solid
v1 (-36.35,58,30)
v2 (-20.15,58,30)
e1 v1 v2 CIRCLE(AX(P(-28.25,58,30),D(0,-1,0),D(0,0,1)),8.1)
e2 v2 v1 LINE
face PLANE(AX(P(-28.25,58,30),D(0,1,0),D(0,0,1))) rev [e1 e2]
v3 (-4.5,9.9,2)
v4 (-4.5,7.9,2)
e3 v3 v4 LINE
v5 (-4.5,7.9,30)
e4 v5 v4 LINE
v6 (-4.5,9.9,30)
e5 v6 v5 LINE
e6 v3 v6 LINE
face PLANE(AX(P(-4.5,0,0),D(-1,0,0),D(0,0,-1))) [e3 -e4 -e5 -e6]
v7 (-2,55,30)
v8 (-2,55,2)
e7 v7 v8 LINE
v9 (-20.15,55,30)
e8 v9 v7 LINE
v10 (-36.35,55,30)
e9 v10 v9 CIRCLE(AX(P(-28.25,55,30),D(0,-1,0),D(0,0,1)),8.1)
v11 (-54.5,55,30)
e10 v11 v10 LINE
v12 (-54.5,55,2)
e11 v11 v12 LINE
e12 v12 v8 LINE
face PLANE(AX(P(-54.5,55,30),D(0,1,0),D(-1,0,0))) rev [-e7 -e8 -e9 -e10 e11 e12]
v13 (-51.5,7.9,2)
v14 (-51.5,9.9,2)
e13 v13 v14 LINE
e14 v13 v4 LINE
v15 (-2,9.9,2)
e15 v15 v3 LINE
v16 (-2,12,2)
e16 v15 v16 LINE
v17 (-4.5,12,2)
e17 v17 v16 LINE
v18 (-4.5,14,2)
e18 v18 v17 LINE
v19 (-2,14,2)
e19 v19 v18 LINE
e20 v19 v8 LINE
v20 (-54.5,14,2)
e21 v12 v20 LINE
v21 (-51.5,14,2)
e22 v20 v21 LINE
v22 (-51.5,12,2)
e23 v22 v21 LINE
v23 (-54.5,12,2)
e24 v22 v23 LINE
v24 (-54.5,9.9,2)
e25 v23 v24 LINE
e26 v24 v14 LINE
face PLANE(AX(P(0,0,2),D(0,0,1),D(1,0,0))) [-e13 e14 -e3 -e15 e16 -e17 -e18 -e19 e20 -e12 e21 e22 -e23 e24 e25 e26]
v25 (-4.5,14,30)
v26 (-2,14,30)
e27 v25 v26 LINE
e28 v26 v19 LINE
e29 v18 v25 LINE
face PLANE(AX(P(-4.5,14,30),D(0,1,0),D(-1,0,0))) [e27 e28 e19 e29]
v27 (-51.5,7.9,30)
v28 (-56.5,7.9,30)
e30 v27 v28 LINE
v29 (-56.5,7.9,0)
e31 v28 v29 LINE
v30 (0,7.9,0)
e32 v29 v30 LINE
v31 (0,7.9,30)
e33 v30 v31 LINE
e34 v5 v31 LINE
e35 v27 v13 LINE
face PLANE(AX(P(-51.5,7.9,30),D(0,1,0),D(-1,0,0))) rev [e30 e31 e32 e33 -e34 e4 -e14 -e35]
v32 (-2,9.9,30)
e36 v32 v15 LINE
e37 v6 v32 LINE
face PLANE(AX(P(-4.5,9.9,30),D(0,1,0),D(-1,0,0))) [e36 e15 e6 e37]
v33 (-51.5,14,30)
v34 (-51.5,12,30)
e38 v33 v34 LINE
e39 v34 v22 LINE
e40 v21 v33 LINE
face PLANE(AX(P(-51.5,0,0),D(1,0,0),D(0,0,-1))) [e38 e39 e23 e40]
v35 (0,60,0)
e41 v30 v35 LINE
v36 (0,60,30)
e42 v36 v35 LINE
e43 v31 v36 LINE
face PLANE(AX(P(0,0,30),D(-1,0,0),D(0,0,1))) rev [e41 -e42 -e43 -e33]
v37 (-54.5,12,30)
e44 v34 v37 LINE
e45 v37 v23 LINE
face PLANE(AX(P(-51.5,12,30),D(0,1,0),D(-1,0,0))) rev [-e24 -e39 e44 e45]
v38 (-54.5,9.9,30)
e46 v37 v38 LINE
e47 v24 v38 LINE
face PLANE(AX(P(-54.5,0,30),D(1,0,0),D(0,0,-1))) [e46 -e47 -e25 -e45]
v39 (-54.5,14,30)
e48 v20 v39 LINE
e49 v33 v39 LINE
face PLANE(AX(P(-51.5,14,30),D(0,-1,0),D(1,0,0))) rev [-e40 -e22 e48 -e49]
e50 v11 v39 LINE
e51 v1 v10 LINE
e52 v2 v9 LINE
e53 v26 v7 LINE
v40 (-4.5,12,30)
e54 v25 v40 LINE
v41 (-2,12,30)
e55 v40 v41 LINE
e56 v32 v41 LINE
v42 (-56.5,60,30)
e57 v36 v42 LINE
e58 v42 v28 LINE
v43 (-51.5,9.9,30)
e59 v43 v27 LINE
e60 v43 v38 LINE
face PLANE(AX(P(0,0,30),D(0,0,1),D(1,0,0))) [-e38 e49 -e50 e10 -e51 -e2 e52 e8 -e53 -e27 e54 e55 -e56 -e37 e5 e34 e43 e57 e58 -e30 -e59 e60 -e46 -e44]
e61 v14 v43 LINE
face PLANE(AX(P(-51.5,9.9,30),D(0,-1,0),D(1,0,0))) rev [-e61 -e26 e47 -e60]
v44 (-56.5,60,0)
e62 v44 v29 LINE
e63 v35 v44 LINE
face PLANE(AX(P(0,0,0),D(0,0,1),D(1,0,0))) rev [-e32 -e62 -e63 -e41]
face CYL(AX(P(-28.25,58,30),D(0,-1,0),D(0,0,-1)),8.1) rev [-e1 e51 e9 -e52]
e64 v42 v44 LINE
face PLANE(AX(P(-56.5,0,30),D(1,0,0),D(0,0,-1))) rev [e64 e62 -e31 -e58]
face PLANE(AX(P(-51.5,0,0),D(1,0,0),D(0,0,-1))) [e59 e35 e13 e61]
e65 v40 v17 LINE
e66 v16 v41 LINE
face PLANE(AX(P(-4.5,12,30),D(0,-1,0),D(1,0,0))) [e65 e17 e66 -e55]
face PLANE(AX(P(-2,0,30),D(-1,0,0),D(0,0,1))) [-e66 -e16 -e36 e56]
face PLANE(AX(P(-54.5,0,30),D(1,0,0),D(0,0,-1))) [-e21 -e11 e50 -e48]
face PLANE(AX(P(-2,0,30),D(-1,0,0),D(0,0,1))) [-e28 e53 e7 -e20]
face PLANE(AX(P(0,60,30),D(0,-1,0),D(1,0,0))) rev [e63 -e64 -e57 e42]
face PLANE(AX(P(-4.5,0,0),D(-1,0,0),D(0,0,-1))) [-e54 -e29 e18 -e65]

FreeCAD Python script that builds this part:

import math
import FreeCAD as App
import Part
import Sketcher

V = App.Vector
Q = App.Units.Quantity


def faces_at(feature, points):
    """Names of the faces that lie closest to the given points."""
    faces = feature.Shape.Faces
    near = lambda p: min(range(len(faces)), key=lambda i: faces[i].distToShape(Part.Vertex(*p))[0])
    return sorted({f"Face{near(p) + 1}" for p in points})


def add_polygon(sketch, points):
    """Adds a closed chain of lines whose ends are joined by coincident constraints."""
    first, n = sketch.GeometryCount, len(points)
    for a, b in zip(points, points[1:] + points[:1]):
        sketch.addGeometry(Part.LineSegment(App.Vector(*a, 0), App.Vector(*b, 0)), False)
    for i in range(n):
        sketch.addConstraint(Sketcher.Constraint("Coincident", first + i, 2, first + (i + 1) % n, 1))

doc = App.newDocument("Part")
body = doc.addObject("PartDesign::Body", "Body")

# Sketch on XY plane
sketch1 = body.newObject("Sketcher::SketchObject", "Sketch")
sketch1.AttachmentSupport = (doc.getObject("XY_Plane"), [""])
sketch1.MapMode = "FlatFace"
add_polygon(sketch1, [(-56, 60), (-56, 0), (0, 0), (0, 60)])  # lines 0-3
sketch1.addConstraint([
    Sketcher.Constraint("Vertical", 0),
    Sketcher.Constraint("Horizontal", 1),
    Sketcher.Constraint("Vertical", 2),
    Sketcher.Constraint("Horizontal", 3),
    Sketcher.Constraint("Coincident", 1, 2, -1, 1),
    Sketcher.Constraint("DistanceY", 0, 2, 0, 1, Q("60 mm")),
    Sketcher.Constraint("DistanceX", 1, 1, 1, 2, Q("56.5 mm")),
])
pad1 = body.newObject("PartDesign::Pad", "Pad")
pad1.Profile = sketch1
pad1.Length = 30
doc.recompute()

thickness = body.newObject("PartDesign::Thickness", "Thickness")
thickness.Base = (pad1, faces_at(pad1, [(-28.25, 30, 30)]))
thickness.Value = 2
thickness.Reversed = True
thickness.Join = "Intersection"

# Sketch on XY plane
sketch2 = body.newObject("Sketcher::SketchObject", "Sketch001")
sketch2.AttachmentSupport = (doc.getObject("XY_Plane"), [""])
sketch2.MapMode = "FlatFace"
sketch2.AttachmentOffset = App.Placement(V(0, 0, 2), App.Rotation())
add_polygon(sketch2, [(-54.5, 58), (-54.5, 55), (-2, 55), (-2, 58)])  # lines 0-3
sketch2.addConstraint([
    Sketcher.Constraint("Vertical", 0),
    Sketcher.Constraint("Horizontal", 1),
    Sketcher.Constraint("Vertical", 2),
    Sketcher.Constraint("Horizontal", 3),
    Sketcher.Constraint("DistanceY", 0, 2, 0, 1, Q("3 mm")),
    Sketcher.Constraint("DistanceX", 1, 1, 1, 2, Q("52.5 mm")),
    Sketcher.Constraint("DistanceY", -1, 1, 0, 2, Q("55 mm")),
    Sketcher.Constraint("DistanceX", 1, 2, -1, 1, Q("2 mm")),
])
pad2 = body.newObject("PartDesign::Pad", "Pad001")
pad2.Profile = sketch2
pad2.Length = 28

# Sketch on XZ plane
sketch3 = body.newObject("Sketcher::SketchObject", "Sketch002")
sketch3.AttachmentSupport = (doc.getObject("XZ_Plane"), [""])
sketch3.MapMode = "FlatFace"
sketch3.AttachmentOffset = App.Placement(V(0, 0, -55), App.Rotation())
sketch3.addGeometry([
    Part.LineSegment(V(-20, 30, 0), V(-36, 30, 0)),
    Part.ArcOfCircle(Part.Circle(V(-28, 30, 0), V(0, 0, 1), 8), math.radians(180), math.radians(360)),
], False)
sketch3.addConstraint([
    Sketcher.Constraint("Coincident", 0, 1, 1, 2),
    Sketcher.Constraint("Coincident", 1, 1, 0, 2),
    Sketcher.Constraint("Horizontal", 0),
    Sketcher.Constraint("Horizontal", 1, 3, 0, 1),
    Sketcher.Constraint("Radius", 1, Q("8.1 mm")),
    Sketcher.Constraint("DistanceY", -1, 1, 1, 3, Q("30 mm")),
    Sketcher.Constraint("DistanceX", 1, 3, -1, 1, Q("28.25 mm")),
])
pocket1 = body.newObject("PartDesign::Pocket", "Pocket")
pocket1.Profile = sketch3
pocket1.Length = 3

# Sketch on YZ plane
sketch4 = body.newObject("Sketcher::SketchObject", "Sketch003")
sketch4.AttachmentSupport = (doc.getObject("YZ_Plane"), [""])
sketch4.MapMode = "FlatFace"
sketch4.AttachmentOffset = App.Placement(V(0, 0, -54.5), App.Rotation())
add_polygon(sketch4, [(14, 30), (12, 30), (12, 0), (14, 0)])  # lines 0-3
sketch4.addConstraint([
    Sketcher.Constraint("Horizontal", 0),
    Sketcher.Constraint("Vertical", 1),
    Sketcher.Constraint("Horizontal", 2),
    Sketcher.Constraint("Vertical", 3),
    Sketcher.Constraint("PointOnObject", 1, 2, -1),
    Sketcher.Constraint("DistanceX", 0, 2, 0, 1, Q("2 mm")),
    Sketcher.Constraint("DistanceY", 1, 2, 1, 1, Q("30 mm")),
    Sketcher.Constraint("DistanceX", -1, 1, 0, 2, Q("12 mm")),
])
pad3 = body.newObject("PartDesign::Pad", "Pad002")
pad3.Profile = sketch4
pad3.Length = 3

# Sketch on YZ plane
sketch5 = body.newObject("Sketcher::SketchObject", "Sketch004")
sketch5.AttachmentSupport = (doc.getObject("YZ_Plane"), [""])
sketch5.MapMode = "FlatFace"
sketch5.AttachmentOffset = App.Placement(V(0, 0, -54.5), App.Rotation())
add_polygon(sketch5, [(9.9, 30), (7.9, 30), (7.9, 0), (9.9, 0)])  # lines 0-3
sketch5.addConstraint([
    Sketcher.Constraint("Horizontal", 0),
    Sketcher.Constraint("Vertical", 1),
    Sketcher.Constraint("Horizontal", 2),
    Sketcher.Constraint("Vertical", 3),
    Sketcher.Constraint("PointOnObject", 1, 2, -1),
    Sketcher.Constraint("DistanceX", 0, 2, 0, 1, Q("2 mm")),
    Sketcher.Constraint("DistanceY", 1, 2, 1, 1, Q("30 mm")),
    Sketcher.Constraint("DistanceX", -1, 1, 0, 2, Q("7.9 mm")),
])
pad4 = body.newObject("PartDesign::Pad", "Pad003")
pad4.Profile = sketch5
pad4.Length = 3
doc.recompute()

datumplane = body.newObject("PartDesign::Plane", "DatumPlane")
datumplane.AttachmentSupport = (doc.getObject("YZ_Plane"), [""])
datumplane.MapMode = "FlatFace"
datumplane.AttachmentOffset = App.Placement(V(0, 0, -28), App.Rotation())
mirrored = body.newObject("PartDesign::Mirrored", "Mirrored")
mirrored.Originals = [pad3, pad4]
mirrored.MirrorPlane = (datumplane, [""])
body.Tip = mirrored

# Sketch on XZ plane
sketch6 = body.newObject("Sketcher::SketchObject", "Sketch005")
sketch6.AttachmentSupport = (doc.getObject("XZ_Plane"), [""])
sketch6.MapMode = "FlatFace"
add_polygon(sketch6, [(-56, 30), (-56, 0), (0, 0), (0, 30)])  # lines 0-3
sketch6.addConstraint([
    Sketcher.Constraint("Vertical", 0),
    Sketcher.Constraint("Horizontal", 1),
    Sketcher.Constraint("Vertical", 2),
    Sketcher.Constraint("Horizontal", 3),
    Sketcher.Constraint("Coincident", 1, 2, -1, 1),
    Sketcher.Constraint("DistanceY", 0, 2, 0, 1, Q("30 mm")),
    Sketcher.Constraint("DistanceX", 1, 1, 1, 2, Q("56.5 mm")),
])
pocket2 = body.newObject("PartDesign::Pocket", "Pocket001")
pocket2.Profile = sketch6
pocket2.Length = 7.9

doc.recompute()
